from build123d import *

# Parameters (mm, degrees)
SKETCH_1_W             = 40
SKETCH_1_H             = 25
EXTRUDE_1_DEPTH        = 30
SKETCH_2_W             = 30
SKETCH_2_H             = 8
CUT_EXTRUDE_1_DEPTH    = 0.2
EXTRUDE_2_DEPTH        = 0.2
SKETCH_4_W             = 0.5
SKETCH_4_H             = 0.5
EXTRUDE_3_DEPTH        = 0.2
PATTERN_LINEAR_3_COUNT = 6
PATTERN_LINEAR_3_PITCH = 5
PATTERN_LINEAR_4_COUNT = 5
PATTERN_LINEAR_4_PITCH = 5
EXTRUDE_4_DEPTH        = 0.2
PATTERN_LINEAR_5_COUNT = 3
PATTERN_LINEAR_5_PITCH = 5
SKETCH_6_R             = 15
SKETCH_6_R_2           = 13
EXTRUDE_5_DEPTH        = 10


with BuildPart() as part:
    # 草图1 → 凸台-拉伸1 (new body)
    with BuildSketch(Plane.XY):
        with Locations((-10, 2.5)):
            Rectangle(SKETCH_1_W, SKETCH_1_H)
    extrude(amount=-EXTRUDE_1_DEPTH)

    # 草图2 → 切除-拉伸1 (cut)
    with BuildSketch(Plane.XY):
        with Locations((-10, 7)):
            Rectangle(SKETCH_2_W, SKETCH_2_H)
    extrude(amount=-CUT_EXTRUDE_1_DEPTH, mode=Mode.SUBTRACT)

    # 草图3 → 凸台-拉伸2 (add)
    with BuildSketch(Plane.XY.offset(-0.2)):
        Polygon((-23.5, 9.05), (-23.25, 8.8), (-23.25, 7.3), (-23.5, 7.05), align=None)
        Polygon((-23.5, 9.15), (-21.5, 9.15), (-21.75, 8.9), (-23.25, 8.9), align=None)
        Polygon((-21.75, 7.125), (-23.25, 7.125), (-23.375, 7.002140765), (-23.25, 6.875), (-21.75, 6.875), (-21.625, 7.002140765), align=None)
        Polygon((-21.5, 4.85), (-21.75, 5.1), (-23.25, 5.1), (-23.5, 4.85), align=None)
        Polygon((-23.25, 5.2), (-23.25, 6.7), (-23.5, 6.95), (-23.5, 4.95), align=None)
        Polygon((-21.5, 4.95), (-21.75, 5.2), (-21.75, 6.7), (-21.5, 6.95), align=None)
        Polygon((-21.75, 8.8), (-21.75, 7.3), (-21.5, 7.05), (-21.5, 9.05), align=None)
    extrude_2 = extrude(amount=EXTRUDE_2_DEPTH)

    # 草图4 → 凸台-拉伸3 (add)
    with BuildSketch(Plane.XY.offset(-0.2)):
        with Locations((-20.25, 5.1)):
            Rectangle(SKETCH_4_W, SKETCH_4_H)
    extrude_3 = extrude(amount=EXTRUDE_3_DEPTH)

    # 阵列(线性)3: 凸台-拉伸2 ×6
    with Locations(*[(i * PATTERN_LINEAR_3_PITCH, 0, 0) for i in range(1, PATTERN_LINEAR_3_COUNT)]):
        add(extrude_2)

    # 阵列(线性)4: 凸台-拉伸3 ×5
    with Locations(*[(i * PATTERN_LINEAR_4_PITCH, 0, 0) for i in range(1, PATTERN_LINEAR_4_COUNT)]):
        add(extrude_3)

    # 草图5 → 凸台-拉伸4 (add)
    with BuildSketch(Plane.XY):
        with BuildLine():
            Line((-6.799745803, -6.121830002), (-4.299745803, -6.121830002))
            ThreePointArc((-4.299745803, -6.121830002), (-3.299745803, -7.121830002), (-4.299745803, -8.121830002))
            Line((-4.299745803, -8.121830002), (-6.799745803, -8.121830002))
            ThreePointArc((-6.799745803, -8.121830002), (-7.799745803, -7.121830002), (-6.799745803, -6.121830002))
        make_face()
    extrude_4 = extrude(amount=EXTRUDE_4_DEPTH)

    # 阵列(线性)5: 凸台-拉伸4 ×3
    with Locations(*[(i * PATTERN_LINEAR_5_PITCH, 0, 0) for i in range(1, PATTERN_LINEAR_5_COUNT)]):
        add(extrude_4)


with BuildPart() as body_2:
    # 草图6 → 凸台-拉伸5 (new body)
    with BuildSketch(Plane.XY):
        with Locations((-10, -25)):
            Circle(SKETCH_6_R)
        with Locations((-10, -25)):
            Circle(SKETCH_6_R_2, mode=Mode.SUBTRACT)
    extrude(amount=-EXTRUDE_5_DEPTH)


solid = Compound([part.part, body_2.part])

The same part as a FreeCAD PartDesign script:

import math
import FreeCAD as App
import Part
import Sketcher
from FreeCAD import Vector


def add_polygon(sketch, points):
    """Adds a closed chain of lines whose ends are joined by coincident constraints."""
    first, n = sketch.GeometryCount, len(points)
    for a, b in zip(points, points[1:] + points[:1]):
        sketch.addGeometry(Part.LineSegment(App.Vector(*a, 0), App.Vector(*b, 0)), False)
    for i in range(n):
        sketch.addConstraint(Sketcher.Constraint("Coincident", first + i, 2, first + (i + 1) % n, 1))

doc = App.newDocument("Part")
body = doc.addObject("PartDesign::Body", "Body")

# Sketch on XY plane
sketch1 = body.newObject("Sketcher::SketchObject", "Sketch")
sketch1.AttachmentSupport = (doc.getObject("XY_Plane"), [""])
sketch1.MapMode = "FlatFace"
add_polygon(sketch1, [(-30, 15), (-30, -10), (10, -10), (10, 15)])  # lines 0-3
sketch1.addConstraint([
    Sketcher.Constraint("Vertical", 0),
    Sketcher.Constraint("Horizontal", 1),
    Sketcher.Constraint("Vertical", 2),
    Sketcher.Constraint("Horizontal", 3),
    Sketcher.Constraint("DistanceX", 1, 1, 1, 2, 40.0),
    Sketcher.Constraint("DistanceY", 0, 2, 0, 1, 25.0),
    Sketcher.Constraint("DistanceX", 0, 2, -1, 1, 30.0),
    Sketcher.Constraint("DistanceY", 0, 2, -1, 1, 10.0),
])
pad1 = body.newObject("PartDesign::Pad", "Pad")
pad1.Profile = sketch1
pad1.Length = 30
pad1.Reversed = True

# Sketch on XY plane
sketch2 = body.newObject("Sketcher::SketchObject", "Sketch001")
sketch2.AttachmentSupport = (doc.getObject("XY_Plane"), [""])
sketch2.MapMode = "FlatFace"
add_polygon(sketch2, [(-25, 11), (-25, 3), (5, 3), (5, 11)])  # lines 0-3
sketch2.addConstraint([
    Sketcher.Constraint("Vertical", 0),
    Sketcher.Constraint("Horizontal", 1),
    Sketcher.Constraint("Vertical", 2),
    Sketcher.Constraint("Horizontal", 3),
    Sketcher.Constraint("DistanceX", 1, 1, 1, 2, 30.0),
    Sketcher.Constraint("DistanceY", 0, 2, 0, 1, 8.0),
    Sketcher.Constraint("DistanceX", 0, 2, -1, 1, 25.0),
    Sketcher.Constraint("DistanceY", -1, 1, 0, 2, 3.0),
])
pocket1 = body.newObject("PartDesign::Pocket", "Pocket")
pocket1.Profile = sketch2
pocket1.Length = 0.2

# Sketch on XY plane
sketch3 = body.newObject("Sketcher::SketchObject", "Sketch002")
sketch3.AttachmentSupport = (doc.getObject("XY_Plane"), [""])
sketch3.MapMode = "FlatFace"
sketch3.AttachmentOffset = App.Placement(Vector(0, 0, -0.2), App.Rotation())
add_polygon(sketch3, [(-23.25, 8.8), (-23.5, 9.05), (-23.5, 7.05), (-23.25, 7.3)])  # lines 0-3
add_polygon(sketch3, [(-21.5, 9.15), (-23.5, 9.15), (-23.25, 8.9), (-21.75, 8.9)])  # lines 4-7
add_polygon(sketch3, [(-21.75, 7.12), (-23.25, 7.12), (-23.38, 7), (-23.25, 6.88), (-21.75, 6.88), (-21.62, 7)])  # lines 8-13
add_polygon(sketch3, [(-21.5, 4.85), (-21.75, 5.1), (-23.25, 5.1), (-23.5, 4.85)])  # lines 14-17
add_polygon(sketch3, [(-23.25, 5.2), (-23.25, 6.7), (-23.5, 6.95), (-23.5, 4.95)])  # lines 18-21
add_polygon(sketch3, [(-21.75, 5.2), (-21.5, 4.95), (-21.5, 6.95), (-21.75, 6.7)])  # lines 22-25
add_polygon(sketch3, [(-21.75, 8.8), (-21.75, 7.3), (-21.5, 7.05), (-21.5, 9.05)])  # lines 26-29
sketch3.addConstraint([
    Sketcher.Constraint("Vertical", 1),
    Sketcher.Constraint("Vertical", 3),
    Sketcher.Constraint("Horizontal", 4),
    Sketcher.Constraint("Horizontal", 6),
    Sketcher.Constraint("Horizontal", 8),
    Sketcher.Constraint("Horizontal", 11),
    Sketcher.Constraint("Horizontal", 15),
    Sketcher.Constraint("Horizontal", 17),
    Sketcher.Constraint("Vertical", 18),
    Sketcher.Constraint("Vertical", 20),
    Sketcher.Constraint("Vertical", 23),
    Sketcher.Constraint("Vertical", 25),
    Sketcher.Constraint("Vertical", 26),
    Sketcher.Constraint("Vertical", 28),
    Sketcher.Constraint("Perpendicular", 0, 2),
    Sketcher.Constraint("Perpendicular", 2, 5),
    Sketcher.Constraint("Perpendicular", 5, 7),
    Sketcher.Constraint("Perpendicular", 7, 14),
    Sketcher.Constraint("Perpendicular", 14, 16),
    Sketcher.Constraint("Perpendicular", 16, 19),
    Sketcher.Constraint("Perpendicular", 19, 21),
    Sketcher.Constraint("Perpendicular", 21, 22),
    Sketcher.Constraint("Perpendicular", 22, 24),
    Sketcher.Constraint("Perpendicular", 24, 27),
    Sketcher.Constraint("Perpendicular", 27, 29),
    Sketcher.Constraint("Horizontal", 9, 2, 12, 2),
    Sketcher.Constraint("Horizontal", 20, 2, 22, 2),
    Sketcher.Constraint("Horizontal", 19, 2, 23, 2),
    Sketcher.Constraint("Horizontal", 18, 2, 24, 2),
    Sketcher.Constraint("Horizontal", 21, 2, 25, 2),
    Sketcher.Constraint("Horizontal", 2, 2, 26, 2),
    Sketcher.Constraint("Horizontal", 1, 2, 27, 2),
    Sketcher.Constraint("Horizontal", 0, 2, 28, 2),
    Sketcher.Constraint("Vertical", 1, 2, 4, 2),
    Sketcher.Constraint("Vertical", 3, 2, 5, 2),
    Sketcher.Constraint("Vertical", 5, 2, 8, 2),
    Sketcher.Constraint("Vertical", 8, 2, 10, 2),
    Sketcher.Constraint("Vertical", 6, 2, 11, 2),
    Sketcher.Constraint("Vertical", 11, 2, 13, 2),
    Sketcher.Constraint("Vertical", 13, 2, 14, 2),
    Sketcher.Constraint("Vertical", 10, 2, 15, 2),
    Sketcher.Constraint("Vertical", 4, 2, 16, 2),
    Sketcher.Constraint("Vertical", 15, 2, 18, 2),
    Sketcher.Constraint("Vertical", 16, 2, 19, 2),
    Sketcher.Constraint("Vertical", 17, 2, 22, 2),
    Sketcher.Constraint("Vertical", 25, 2, 26, 2),
    Sketcher.Constraint("Equal", 17, 1),
    Sketcher.Constraint("Equal", 3, 18),
    Sketcher.Constraint("Equal", 10, 12),
    Sketcher.Constraint("DistanceX", 4, 2, 4, 1, 2.0),
    Sketcher.Constraint("DistanceX", 6, 1, 6, 2, 1.5),
    Sketcher.Constraint("DistanceX", 0, 2, -1, 1, 23.5),
    Sketcher.Constraint("DistanceY", -1, 1, 2, 2, 7.3),
    Sketcher.Constraint("DistanceY", -1, 1, 5, 2, 8.9),
    Sketcher.Constraint("DistanceY", -1, 1, 14, 2, 5.1),
    Sketcher.Constraint("DistanceY", -1, 1, 18, 2, 6.7),
    Sketcher.Constraint("DistanceY", 10, 2, 8, 2, 0.25),
    Sketcher.Constraint("DistanceX", 9, 2, 12, 2, 1.75),
    Sketcher.Constraint("DistanceY", -1, 1, 8, 2, 7.125),
    Sketcher.Constraint("Distance", 9, 0.175269),
])
pad2 = body.newObject("PartDesign::Pad", "Pad001")
pad2.Profile = sketch3
pad2.Length = 0.2

# Sketch on XY plane
sketch4 = body.newObject("Sketcher::SketchObject", "Sketch003")
sketch4.AttachmentSupport = (doc.getObject("XY_Plane"), [""])
sketch4.MapMode = "FlatFace"
sketch4.AttachmentOffset = App.Placement(Vector(0, 0, -0.2), App.Rotation())
add_polygon(sketch4, [(-20.5, 5.3), (-20.5, 4.8), (-20, 4.8), (-20, 5.3)])  # lines 0-3
sketch4.addConstraint([
    Sketcher.Constraint("Vertical", 0),
    Sketcher.Constraint("Horizontal", 1),
    Sketcher.Constraint("Vertical", 2),
    Sketcher.Constraint("Horizontal", 3),
    Sketcher.Constraint("Equal", 3, 0),
    Sketcher.Constraint("DistanceX", 1, 1, 1, 2, 0.5),
    Sketcher.Constraint("DistanceX", 1, 2, -1, 1, 20.0),
    Sketcher.Constraint("DistanceY", -1, 1, 0, 2, 4.85),
])
pad3 = body.newObject("PartDesign::Pad", "Pad002")
pad3.Profile = sketch4
pad3.Length = 0.2
doc.recompute()

linearpattern = body.newObject("PartDesign::LinearPattern", "LinearPattern")
linearpattern.Originals = [pad2]
linearpattern.Direction = (doc.getObject("X_Axis"), [""])
linearpattern.Mode = "offset"
linearpattern.Offset = 5
linearpattern.Occurrences = 6
body.Tip = linearpattern
doc.recompute()

linearpattern2 = body.newObject("PartDesign::LinearPattern", "LinearPattern001")
linearpattern2.Originals = [pad3]
linearpattern2.Direction = (doc.getObject("X_Axis"), [""])
linearpattern2.Mode = "offset"
linearpattern2.Offset = 5
linearpattern2.Occurrences = 5
body.Tip = linearpattern2

# Sketch on XY plane
sketch5 = body.newObject("Sketcher::SketchObject", "Sketch004")
sketch5.AttachmentSupport = (doc.getObject("XY_Plane"), [""])
sketch5.MapMode = "FlatFace"
sketch5.addGeometry([
    Part.LineSegment(Vector(-4.3, -6.1, 0), Vector(-6.8, -6.1, 0)),
    Part.ArcOfCircle(Part.Circle(Vector(-6.8, -7.1, 0), Vector(0, 0, 1), 1), math.radians(90), math.radians(270)),
    Part.LineSegment(Vector(-6.8, -8.1, 0), Vector(-4.3, -8.1, 0)),
    Part.ArcOfCircle(Part.Circle(Vector(-4.3, -7.1, 0), Vector(0, 0, 1), 1), math.radians(-90), math.radians(90)),
], False)
sketch5.addConstraint([
    Sketcher.Constraint("Tangent", 0, 2, 1, 1),
    Sketcher.Constraint("Tangent", 1, 2, 2, 1),
    Sketcher.Constraint("Tangent", 2, 2, 3, 1),
    Sketcher.Constraint("Tangent", 3, 2, 0, 1),
    Sketcher.Constraint("Horizontal", 0),
    Sketcher.Constraint("Horizontal", 2),
    Sketcher.Constraint("Radius", 1, 1.0),
    Sketcher.Constraint("DistanceX", 0, 2, 0, 1, 2.5),
    Sketcher.Constraint("DistanceY", 1, 3, -1, 1, 7.12183),
    Sketcher.Constraint("DistanceX", 1, 3, -1, 1, 6.799746),
])
pad4 = body.newObject("PartDesign::Pad", "Pad003")
pad4.Profile = sketch5
pad4.Length = 0.2
doc.recompute()

linearpattern3 = body.newObject("PartDesign::LinearPattern", "LinearPattern002")
linearpattern3.Originals = [pad4]
linearpattern3.Direction = (doc.getObject("X_Axis"), [""])
linearpattern3.Mode = "offset"
linearpattern3.Offset = 5
linearpattern3.Occurrences = 3
body.Tip = linearpattern3
body2 = doc.addObject("PartDesign::Body", "Body001")

# Sketch on XY plane
sketch6 = body2.newObject("Sketcher::SketchObject", "Sketch005")
sketch6.AttachmentSupport = (doc.getObject("XY_Plane001"), [""])
sketch6.MapMode = "FlatFace"
sketch6.addGeometry([
    Part.Circle(Vector(-10, -25, 0), Vector(0, 0, 1), 15),
    Part.Circle(Vector(-10, -25, 0), Vector(0, 0, 1), 13),
], False)
sketch6.addConstraint([
    Sketcher.Constraint("Coincident", 1, 3, 0, 3),
    Sketcher.Constraint("Diameter", 0, 30.0),
    Sketcher.Constraint("Diameter", 1, 26.0),
    Sketcher.Constraint("DistanceX", 0, 3, -1, 1, 10.0),
    Sketcher.Constraint("DistanceY", 0, 3, -1, 1, 25.0),
])
pad5 = body2.newObject("PartDesign::Pad", "Pad004")
pad5.Profile = sketch6
pad5.Length = 10
pad5.Reversed = True

doc.recompute()
